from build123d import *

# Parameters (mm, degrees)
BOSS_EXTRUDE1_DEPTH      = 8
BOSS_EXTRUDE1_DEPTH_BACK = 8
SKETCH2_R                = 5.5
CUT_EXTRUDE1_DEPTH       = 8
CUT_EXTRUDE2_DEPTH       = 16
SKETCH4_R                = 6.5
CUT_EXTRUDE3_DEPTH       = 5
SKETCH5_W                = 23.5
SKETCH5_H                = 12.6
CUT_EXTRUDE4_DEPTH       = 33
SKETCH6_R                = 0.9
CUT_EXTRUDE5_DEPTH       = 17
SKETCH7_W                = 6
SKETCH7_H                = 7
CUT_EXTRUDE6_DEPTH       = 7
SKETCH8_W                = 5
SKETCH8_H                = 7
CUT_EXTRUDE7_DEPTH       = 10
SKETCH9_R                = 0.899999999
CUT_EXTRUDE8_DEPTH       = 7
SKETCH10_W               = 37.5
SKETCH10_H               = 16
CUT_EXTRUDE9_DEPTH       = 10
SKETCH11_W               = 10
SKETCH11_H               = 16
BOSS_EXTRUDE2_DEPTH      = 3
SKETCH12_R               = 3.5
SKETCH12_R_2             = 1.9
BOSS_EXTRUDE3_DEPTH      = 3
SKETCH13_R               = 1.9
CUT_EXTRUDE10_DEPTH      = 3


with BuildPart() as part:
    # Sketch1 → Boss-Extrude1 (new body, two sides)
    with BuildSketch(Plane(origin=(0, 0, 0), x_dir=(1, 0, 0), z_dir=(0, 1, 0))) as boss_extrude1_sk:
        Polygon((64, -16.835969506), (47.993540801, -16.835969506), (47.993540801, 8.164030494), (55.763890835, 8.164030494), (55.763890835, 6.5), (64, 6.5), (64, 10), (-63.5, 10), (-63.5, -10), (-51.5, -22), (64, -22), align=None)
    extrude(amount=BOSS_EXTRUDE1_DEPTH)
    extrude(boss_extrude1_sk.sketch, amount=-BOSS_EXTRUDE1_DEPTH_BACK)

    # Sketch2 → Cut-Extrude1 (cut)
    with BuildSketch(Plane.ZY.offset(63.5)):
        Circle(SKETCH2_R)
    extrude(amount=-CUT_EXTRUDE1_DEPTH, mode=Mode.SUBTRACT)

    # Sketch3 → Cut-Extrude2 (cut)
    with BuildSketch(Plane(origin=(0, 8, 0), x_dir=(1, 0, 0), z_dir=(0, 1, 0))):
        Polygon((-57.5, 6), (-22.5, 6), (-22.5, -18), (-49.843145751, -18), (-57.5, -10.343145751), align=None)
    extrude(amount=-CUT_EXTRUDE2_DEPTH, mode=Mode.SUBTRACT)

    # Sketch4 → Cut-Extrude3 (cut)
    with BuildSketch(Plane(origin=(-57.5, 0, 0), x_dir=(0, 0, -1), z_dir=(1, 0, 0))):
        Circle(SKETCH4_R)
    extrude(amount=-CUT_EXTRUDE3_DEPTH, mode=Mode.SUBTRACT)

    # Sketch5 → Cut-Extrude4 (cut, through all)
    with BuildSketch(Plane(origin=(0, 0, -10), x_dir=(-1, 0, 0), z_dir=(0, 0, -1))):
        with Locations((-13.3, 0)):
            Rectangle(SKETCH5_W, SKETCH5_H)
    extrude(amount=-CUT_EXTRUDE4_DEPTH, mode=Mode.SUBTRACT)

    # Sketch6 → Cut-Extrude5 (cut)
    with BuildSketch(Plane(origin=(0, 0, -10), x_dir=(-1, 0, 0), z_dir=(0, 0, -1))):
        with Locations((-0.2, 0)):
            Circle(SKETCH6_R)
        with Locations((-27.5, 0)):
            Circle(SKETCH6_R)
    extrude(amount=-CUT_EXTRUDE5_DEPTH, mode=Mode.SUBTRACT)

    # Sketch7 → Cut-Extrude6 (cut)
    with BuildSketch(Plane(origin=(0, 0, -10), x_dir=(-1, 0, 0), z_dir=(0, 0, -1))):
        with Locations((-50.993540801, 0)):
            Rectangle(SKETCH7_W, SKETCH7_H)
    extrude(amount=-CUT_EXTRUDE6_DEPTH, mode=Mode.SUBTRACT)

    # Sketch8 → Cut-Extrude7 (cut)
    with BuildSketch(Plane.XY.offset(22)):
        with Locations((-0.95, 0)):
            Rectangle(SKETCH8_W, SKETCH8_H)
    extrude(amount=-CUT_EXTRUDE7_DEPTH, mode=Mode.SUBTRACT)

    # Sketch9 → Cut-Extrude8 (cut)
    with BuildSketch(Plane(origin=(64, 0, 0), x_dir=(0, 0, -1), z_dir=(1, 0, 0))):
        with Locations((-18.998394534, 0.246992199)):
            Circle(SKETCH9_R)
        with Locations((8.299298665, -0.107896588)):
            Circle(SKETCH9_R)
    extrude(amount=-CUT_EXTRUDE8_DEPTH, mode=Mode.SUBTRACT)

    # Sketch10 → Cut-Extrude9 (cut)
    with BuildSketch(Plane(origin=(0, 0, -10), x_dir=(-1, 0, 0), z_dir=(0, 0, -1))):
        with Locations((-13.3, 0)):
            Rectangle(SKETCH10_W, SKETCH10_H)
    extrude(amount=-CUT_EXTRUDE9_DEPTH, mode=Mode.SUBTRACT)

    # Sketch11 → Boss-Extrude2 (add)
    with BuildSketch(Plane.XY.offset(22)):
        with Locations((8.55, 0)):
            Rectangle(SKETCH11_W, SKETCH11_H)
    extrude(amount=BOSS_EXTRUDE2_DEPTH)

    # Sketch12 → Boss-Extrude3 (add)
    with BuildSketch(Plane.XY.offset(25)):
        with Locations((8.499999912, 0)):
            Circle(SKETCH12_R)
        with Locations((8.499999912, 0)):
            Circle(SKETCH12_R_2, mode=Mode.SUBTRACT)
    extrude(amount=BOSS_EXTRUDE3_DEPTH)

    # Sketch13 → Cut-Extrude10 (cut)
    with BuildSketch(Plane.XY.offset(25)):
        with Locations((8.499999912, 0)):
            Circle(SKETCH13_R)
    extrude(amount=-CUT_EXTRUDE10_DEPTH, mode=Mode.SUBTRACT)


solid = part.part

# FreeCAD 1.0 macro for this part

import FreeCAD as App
import Part
import Sketcher
from FreeCAD import Vector
Q = App.Units.Quantity


def add_polygon(sketch, points):
    """Adds a closed chain of lines whose ends are joined by coincident constraints."""
    first, n = sketch.GeometryCount, len(points)
    for a, b in zip(points, points[1:] + points[:1]):
        sketch.addGeometry(Part.LineSegment(App.Vector(*a, 0), App.Vector(*b, 0)), False)
    for i in range(n):
        sketch.addConstraint(Sketcher.Constraint("Coincident", first + i, 2, first + (i + 1) % n, 1))

doc = App.newDocument("Part")
body = doc.addObject("PartDesign::Body", "Body")

# Sketch on XZ plane
sketch1 = body.newObject("Sketcher::SketchObject", "Sketch")
sketch1.AttachmentSupport = (doc.getObject("XZ_Plane"), [""])
sketch1.MapMode = "FlatFace"
add_polygon(sketch1, [(64, 16.8), (48, 16.8), (48, -8.2), (55.8, -8.2), (55.8, -6.5), (64, -6.5), (64, -10), (-63.5, -10), (-63.5, 10), (-51.5, 22), (64, 22)])  # lines 0-10
sketch1.addConstraint(Sketcher.Constraint("Horizontal", 0))
sketch1.addConstraint(Sketcher.Constraint("Vertical", 1))
sketch1.addConstraint(Sketcher.Constraint("Horizontal", 2))
sketch1.addConstraint(Sketcher.Constraint("Vertical", 3))
sketch1.addConstraint(Sketcher.Constraint("Horizontal", 4))
sketch1.addConstraint(Sketcher.Constraint("Vertical", 5))
sketch1.addConstraint(Sketcher.Constraint("Horizontal", 6))
sketch1.addConstraint(Sketcher.Constraint("Vertical", 7))
sketch1.addConstraint(Sketcher.Constraint("Horizontal", 9))
sketch1.addConstraint(Sketcher.Constraint("Vertical", 10))
sketch1.addConstraint(Sketcher.Constraint("Vertical", 5, 2, 9, 2))
sketch1.addConstraint(Sketcher.Constraint("DistanceY", 1, 2, 1, 1, 25.0))
sketch1.addConstraint(Sketcher.Constraint("DistanceY", 7, 1, 7, 2, 20.0))
sketch1.addConstraint(Sketcher.Constraint("Angle", 8, Q("45 deg")))
sketch1.addConstraint(Sketcher.Constraint("DistanceX", 6, 2, 6, 1, 127.5))
sketch1.addConstraint(Sketcher.Constraint("DistanceX", 9, 1, 9, 2, 115.5))
sketch1.addConstraint(Sketcher.Constraint("DistanceY", 5, 2, 5, 1, 3.5))
sketch1.addConstraint(Sketcher.Constraint("DistanceX", -1, 1, 4, 2, 64.0))
sketch1.addConstraint(Sketcher.Constraint("DistanceY", 5, 2, -1, 1, 10.0))
sketch1.addConstraint(Sketcher.Constraint("DistanceX", 0, 2, 0, 1, 16.006459))
sketch1.addConstraint(Sketcher.Constraint("DistanceX", 2, 1, 2, 2, 7.77035))
sketch1.addConstraint(Sketcher.Constraint("DistanceY", 3, 1, 3, 2, 1.66403))
pad1 = body.newObject("PartDesign::Pad", "Pad")
pad1.Profile = sketch1
pad1.Type = "TwoLengths"
pad1.Length = 8
pad1.Length2 = 8
pad1.Reversed = True

# Sketch on YZ plane
sketch2 = body.newObject("Sketcher::SketchObject", "Sketch001")
sketch2.AttachmentSupport = (doc.getObject("YZ_Plane"), [""])
sketch2.MapMode = "FlatFace"
sketch2.AttachmentOffset = App.Placement(Vector(0, 0, -63.5), App.Rotation())
sketch2.addGeometry(Part.Circle(Vector(0, 0, 0), Vector(0, 0, 1), 6), False)
sketch2.addConstraint(Sketcher.Constraint("Coincident", 0, 3, -1, 1))
sketch2.addConstraint(Sketcher.Constraint("Diameter", 0, 11.0))
pocket1 = body.newObject("PartDesign::Pocket", "Pocket")
pocket1.Profile = sketch2
pocket1.Length = 8
pocket1.Reversed = True

# Sketch on XZ plane
sketch3 = body.newObject("Sketcher::SketchObject", "Sketch002")
sketch3.AttachmentSupport = (doc.getObject("XZ_Plane"), [""])
sketch3.MapMode = "FlatFace"
sketch3.AttachmentOffset = App.Placement(Vector(0, 0, -8), App.Rotation())
add_polygon(sketch3, [(-22, -6), (-58, -6), (-58, 10), (-50, 18), (-22, 18)])  # lines 0-4
sketch3.addConstraint(Sketcher.Constraint("Horizontal", 0))
sketch3.addConstraint(Sketcher.Constraint("Vertical", 1))
sketch3.addConstraint(Sketcher.Constraint("Horizontal", 3))
sketch3.addConstraint(Sketcher.Constraint("Vertical", 4))
sketch3.addConstraint(Sketcher.Constraint("DistanceX", 0, 2, 0, 1, 35.0))
sketch3.addConstraint(Sketcher.Constraint("DistanceY", 4, 2, 4, 1, 24.0))
sketch3.addConstraint(Sketcher.Constraint("Angle", 2, Q("45 deg")))
sketch3.addConstraint(Sketcher.Constraint("DistanceY", 0, 2, -1, 1, 6.0))
sketch3.addConstraint(Sketcher.Constraint("DistanceX", 0, 2, -1, 1, 57.5))
sketch3.addConstraint(Sketcher.Constraint("DistanceX", 3, 1, 3, 2, 27.343146))
pocket2 = body.newObject("PartDesign::Pocket", "Pocket001")
pocket2.Profile = sketch3
pocket2.Length = 16
pocket2.Reversed = True

# Sketch on YZ plane
sketch4 = body.newObject("Sketcher::SketchObject", "Sketch003")
sketch4.AttachmentSupport = (doc.getObject("YZ_Plane"), [""])
sketch4.MapMode = "FlatFace"
sketch4.AttachmentOffset = App.Placement(Vector(0, 0, -57.5), App.Rotation())
sketch4.addGeometry(Part.Circle(Vector(0, 0, 0), Vector(0, 0, 1), 6), False)
sketch4.addConstraint(Sketcher.Constraint("Coincident", 0, 3, -1, 1))
sketch4.addConstraint(Sketcher.Constraint("Diameter", 0, 13.0))
pocket3 = body.newObject("PartDesign::Pocket", "Pocket002")
pocket3.Profile = sketch4
pocket3.Length = 5

# Sketch on XY plane
sketch5 = body.newObject("Sketcher::SketchObject", "Sketch004")
sketch5.AttachmentSupport = (doc.getObject("XY_Plane"), [""])
sketch5.MapMode = "FlatFace"
sketch5.AttachmentOffset = App.Placement(Vector(0, 0, -10), App.Rotation())
add_polygon(sketch5, [(25, 6), (25, -6), (2, -6), (2, 6)])  # lines 0-3
sketch5.addConstraint(Sketcher.Constraint("Vertical", 0))
sketch5.addConstraint(Sketcher.Constraint("Horizontal", 1))
sketch5.addConstraint(Sketcher.Constraint("Vertical", 2))
sketch5.addConstraint(Sketcher.Constraint("Horizontal", 3))
sketch5.addConstraint(Sketcher.Constraint("DistanceX", 1, 2, 1, 1, 23.5))
sketch5.addConstraint(Sketcher.Constraint("DistanceY", 0, 2, 0, 1, 12.6))
sketch5.addConstraint(Sketcher.Constraint("DistanceY", 0, 2, -1, 1, 6.3))
sketch5.addConstraint(Sketcher.Constraint("DistanceX", -1, 1, 0, 2, 25.05))
pocket4 = body.newObject("PartDesign::Pocket", "Pocket003")
pocket4.Profile = sketch5
pocket4.Type = "ThroughAll"
pocket4.Reversed = True

# Sketch on XY plane
sketch6 = body.newObject("Sketcher::SketchObject", "Sketch005")
sketch6.AttachmentSupport = (doc.getObject("XY_Plane"), [""])
sketch6.MapMode = "FlatFace"
sketch6.AttachmentOffset = App.Placement(Vector(0, 0, -10), App.Rotation())
sketch6.addGeometry(Part.Circle(Vector(0.2, 0, 0), Vector(0, 0, 1), 0.9), False)
sketch6.addGeometry(Part.Circle(Vector(27.5, 0, 0), Vector(0, 0, 1), 0.9), False)
sketch6.addConstraint(Sketcher.Constraint("Equal", 0, 1))
sketch6.addConstraint(Sketcher.Constraint("PointOnObject", 0, 3, -1))
sketch6.addConstraint(Sketcher.Constraint("PointOnObject", 1, 3, -1))
sketch6.addConstraint(Sketcher.Constraint("Diameter", 0, 1.8))
sketch6.addConstraint(Sketcher.Constraint("DistanceX", -1, 1, 0, 3, 0.2))
sketch6.addConstraint(Sketcher.Constraint("DistanceX", -1, 1, 1, 3, 27.5))
pocket5 = body.newObject("PartDesign::Pocket", "Pocket004")
pocket5.Profile = sketch6
pocket5.Length = 17
pocket5.Reversed = True

# Sketch on XY plane
sketch7 = body.newObject("Sketcher::SketchObject", "Sketch006")
sketch7.AttachmentSupport = (doc.getObject("XY_Plane"), [""])
sketch7.MapMode = "FlatFace"
sketch7.AttachmentOffset = App.Placement(Vector(0, 0, -10), App.Rotation())
add_polygon(sketch7, [(54, 4), (54, -4), (48, -4), (48, 4)])  # lines 0-3
sketch7.addConstraint(Sketcher.Constraint("Vertical", 0))
sketch7.addConstraint(Sketcher.Constraint("Horizontal", 1))
sketch7.addConstraint(Sketcher.Constraint("Vertical", 2))
sketch7.addConstraint(Sketcher.Constraint("Horizontal", 3))
sketch7.addConstraint(Sketcher.Constraint("DistanceX", 1, 2, 1, 1, 6.0))
sketch7.addConstraint(Sketcher.Constraint("DistanceY", 0, 2, 0, 1, 7.0))
sketch7.addConstraint(Sketcher.Constraint("DistanceY", 0, 2, -1, 1, 3.5))
sketch7.addConstraint(Sketcher.Constraint("DistanceX", -1, 1, 0, 2, 53.993541))
pocket6 = body.newObject("PartDesign::Pocket", "Pocket005")
pocket6.Profile = sketch7
pocket6.Length = 7
pocket6.Reversed = True

# Sketch on XY plane
sketch8 = body.newObject("Sketcher::SketchObject", "Sketch007")
sketch8.AttachmentSupport = (doc.getObject("XY_Plane"), [""])
sketch8.MapMode = "FlatFace"
sketch8.AttachmentOffset = App.Placement(Vector(0, 0, 22), App.Rotation())
add_polygon(sketch8, [(-3, 4), (-3, -4), (2, -4), (2, 4)])  # lines 0-3
sketch8.addConstraint(Sketcher.Constraint("Vertical", 0))
sketch8.addConstraint(Sketcher.Constraint("Horizontal", 1))
sketch8.addConstraint(Sketcher.Constraint("Vertical", 2))
sketch8.addConstraint(Sketcher.Constraint("Horizontal", 3))
sketch8.addConstraint(Sketcher.Constraint("DistanceX", 1, 1, 1, 2, 5.0))
sketch8.addConstraint(Sketcher.Constraint("DistanceY", 0, 2, 0, 1, 7.0))
sketch8.addConstraint(Sketcher.Constraint("DistanceY", 0, 2, -1, 1, 3.5))
sketch8.addConstraint(Sketcher.Constraint("DistanceX", 0, 2, -1, 1, 3.45))
pocket7 = body.newObject("PartDesign::Pocket", "Pocket006")
pocket7.Profile = sketch8
pocket7.Length = 10

# Sketch on YZ plane
sketch9 = body.newObject("Sketcher::SketchObject", "Sketch008")
sketch9.AttachmentSupport = (doc.getObject("YZ_Plane"), [""])
sketch9.MapMode = "FlatFace"
sketch9.AttachmentOffset = App.Placement(Vector(0, 0, 64), App.Rotation())
sketch9.addGeometry(Part.Circle(Vector(0.2, 19, 0), Vector(0, 0, 1), 0.9), False)
sketch9.addGeometry(Part.Circle(Vector(-0.1, -8.3, 0), Vector(0, 0, 1), 0.9), False)
sketch9.addConstraint(Sketcher.Constraint("Equal", 0, 1))
sketch9.addConstraint(Sketcher.Constraint("Diameter", 0, 1.8))
sketch9.addConstraint(Sketcher.Constraint("DistanceY", 1, 3, -1, 1, 8.299299))
sketch9.addConstraint(Sketcher.Constraint("DistanceX", 1, 3, 0, 3, 0.354889))
sketch9.addConstraint(Sketcher.Constraint("DistanceX", -1, 1, 0, 3, 0.246992))
sketch9.addConstraint(Sketcher.Constraint("DistanceY", -1, 1, 0, 3, 18.998395))
pocket8 = body.newObject("PartDesign::Pocket", "Pocket007")
pocket8.Profile = sketch9
pocket8.Length = 7

# Sketch on XY plane
sketch10 = body.newObject("Sketcher::SketchObject", "Sketch009")
sketch10.AttachmentSupport = (doc.getObject("XY_Plane"), [""])
sketch10.MapMode = "FlatFace"
sketch10.AttachmentOffset = App.Placement(Vector(0, 0, -10), App.Rotation())
add_polygon(sketch10, [(32, 8), (32, -8), (-5, -8), (-5, 8)])  # lines 0-3
sketch10.addConstraint(Sketcher.Constraint("Vertical", 0))
sketch10.addConstraint(Sketcher.Constraint("Horizontal", 1))
sketch10.addConstraint(Sketcher.Constraint("Vertical", 2))
sketch10.addConstraint(Sketcher.Constraint("Horizontal", 3))
sketch10.addConstraint(Sketcher.Constraint("DistanceY", 0, 2, 0, 1, 16.0))
sketch10.addConstraint(Sketcher.Constraint("DistanceX", 1, 2, 1, 1, 37.5))
sketch10.addConstraint(Sketcher.Constraint("DistanceY", 0, 2, -1, 1, 8.0))
sketch10.addConstraint(Sketcher.Constraint("DistanceX", -1, 1, 0, 2, 32.05))
pocket9 = body.newObject("PartDesign::Pocket", "Pocket008")
pocket9.Profile = sketch10
pocket9.Length = 10
pocket9.Reversed = True

# Sketch on XY plane
sketch11 = body.newObject("Sketcher::SketchObject", "Sketch010")
sketch11.AttachmentSupport = (doc.getObject("XY_Plane"), [""])
sketch11.MapMode = "FlatFace"
sketch11.AttachmentOffset = App.Placement(Vector(0, 0, 22), App.Rotation())
add_polygon(sketch11, [(4, 8), (4, -8), (14, -8), (14, 8)])  # lines 0-3
sketch11.addConstraint(Sketcher.Constraint("Vertical", 0))
sketch11.addConstraint(Sketcher.Constraint("Horizontal", 1))
sketch11.addConstraint(Sketcher.Constraint("Vertical", 2))
sketch11.addConstraint(Sketcher.Constraint("Horizontal", 3))
sketch11.addConstraint(Sketcher.Constraint("DistanceX", 1, 1, 1, 2, 10.0))
sketch11.addConstraint(Sketcher.Constraint("DistanceY", 0, 2, 0, 1, 16.0))
sketch11.addConstraint(Sketcher.Constraint("DistanceY", 0, 2, -1, 1, 8.0))
sketch11.addConstraint(Sketcher.Constraint("DistanceX", -1, 1, 0, 2, 3.55))
pad2 = body.newObject("PartDesign::Pad", "Pad001")
pad2.Profile = sketch11
pad2.Length = 3

# Sketch on XY plane
sketch12 = body.newObject("Sketcher::SketchObject", "Sketch011")
sketch12.AttachmentSupport = (doc.getObject("XY_Plane"), [""])
sketch12.MapMode = "FlatFace"
sketch12.AttachmentOffset = App.Placement(Vector(0, 0, 25), App.Rotation())
sketch12.addGeometry(Part.Circle(Vector(8.5, 0, 0), Vector(0, 0, 1), 3.5), False)
sketch12.addGeometry(Part.Circle(Vector(8.5, 0, 0), Vector(0, 0, 1), 1.9), False)
sketch12.addConstraint(Sketcher.Constraint("Coincident", 1, 3, 0, 3))
sketch12.addConstraint(Sketcher.Constraint("PointOnObject", 0, 3, -1))
sketch12.addConstraint(Sketcher.Constraint("Diameter", 0, 7.0))
sketch12.addConstraint(Sketcher.Constraint("Diameter", 1, 3.8))
sketch12.addConstraint(Sketcher.Constraint("DistanceX", -1, 1, 0, 3, 8.5))
pad3 = body.newObject("PartDesign::Pad", "Pad002")
pad3.Profile = sketch12
pad3.Length = 3

# Sketch on XY plane
sketch13 = body.newObject("Sketcher::SketchObject", "Sketch012")
sketch13.AttachmentSupport = (doc.getObject("XY_Plane"), [""])
sketch13.MapMode = "FlatFace"
sketch13.AttachmentOffset = App.Placement(Vector(0, 0, 25), App.Rotation())
sketch13.addGeometry(Part.Circle(Vector(8.5, 0, 0), Vector(0, 0, 1), 1.9), False)
sketch13.addConstraint(Sketcher.Constraint("PointOnObject", 0, 3, -1))
sketch13.addConstraint(Sketcher.Constraint("Diameter", 0, 3.8))
sketch13.addConstraint(Sketcher.Constraint("DistanceX", -1, 1, 0, 3, 8.5))
pocket10 = body.newObject("PartDesign::Pocket", "Pocket009")
pocket10.Profile = sketch13
pocket10.Length = 3

doc.recompute()
